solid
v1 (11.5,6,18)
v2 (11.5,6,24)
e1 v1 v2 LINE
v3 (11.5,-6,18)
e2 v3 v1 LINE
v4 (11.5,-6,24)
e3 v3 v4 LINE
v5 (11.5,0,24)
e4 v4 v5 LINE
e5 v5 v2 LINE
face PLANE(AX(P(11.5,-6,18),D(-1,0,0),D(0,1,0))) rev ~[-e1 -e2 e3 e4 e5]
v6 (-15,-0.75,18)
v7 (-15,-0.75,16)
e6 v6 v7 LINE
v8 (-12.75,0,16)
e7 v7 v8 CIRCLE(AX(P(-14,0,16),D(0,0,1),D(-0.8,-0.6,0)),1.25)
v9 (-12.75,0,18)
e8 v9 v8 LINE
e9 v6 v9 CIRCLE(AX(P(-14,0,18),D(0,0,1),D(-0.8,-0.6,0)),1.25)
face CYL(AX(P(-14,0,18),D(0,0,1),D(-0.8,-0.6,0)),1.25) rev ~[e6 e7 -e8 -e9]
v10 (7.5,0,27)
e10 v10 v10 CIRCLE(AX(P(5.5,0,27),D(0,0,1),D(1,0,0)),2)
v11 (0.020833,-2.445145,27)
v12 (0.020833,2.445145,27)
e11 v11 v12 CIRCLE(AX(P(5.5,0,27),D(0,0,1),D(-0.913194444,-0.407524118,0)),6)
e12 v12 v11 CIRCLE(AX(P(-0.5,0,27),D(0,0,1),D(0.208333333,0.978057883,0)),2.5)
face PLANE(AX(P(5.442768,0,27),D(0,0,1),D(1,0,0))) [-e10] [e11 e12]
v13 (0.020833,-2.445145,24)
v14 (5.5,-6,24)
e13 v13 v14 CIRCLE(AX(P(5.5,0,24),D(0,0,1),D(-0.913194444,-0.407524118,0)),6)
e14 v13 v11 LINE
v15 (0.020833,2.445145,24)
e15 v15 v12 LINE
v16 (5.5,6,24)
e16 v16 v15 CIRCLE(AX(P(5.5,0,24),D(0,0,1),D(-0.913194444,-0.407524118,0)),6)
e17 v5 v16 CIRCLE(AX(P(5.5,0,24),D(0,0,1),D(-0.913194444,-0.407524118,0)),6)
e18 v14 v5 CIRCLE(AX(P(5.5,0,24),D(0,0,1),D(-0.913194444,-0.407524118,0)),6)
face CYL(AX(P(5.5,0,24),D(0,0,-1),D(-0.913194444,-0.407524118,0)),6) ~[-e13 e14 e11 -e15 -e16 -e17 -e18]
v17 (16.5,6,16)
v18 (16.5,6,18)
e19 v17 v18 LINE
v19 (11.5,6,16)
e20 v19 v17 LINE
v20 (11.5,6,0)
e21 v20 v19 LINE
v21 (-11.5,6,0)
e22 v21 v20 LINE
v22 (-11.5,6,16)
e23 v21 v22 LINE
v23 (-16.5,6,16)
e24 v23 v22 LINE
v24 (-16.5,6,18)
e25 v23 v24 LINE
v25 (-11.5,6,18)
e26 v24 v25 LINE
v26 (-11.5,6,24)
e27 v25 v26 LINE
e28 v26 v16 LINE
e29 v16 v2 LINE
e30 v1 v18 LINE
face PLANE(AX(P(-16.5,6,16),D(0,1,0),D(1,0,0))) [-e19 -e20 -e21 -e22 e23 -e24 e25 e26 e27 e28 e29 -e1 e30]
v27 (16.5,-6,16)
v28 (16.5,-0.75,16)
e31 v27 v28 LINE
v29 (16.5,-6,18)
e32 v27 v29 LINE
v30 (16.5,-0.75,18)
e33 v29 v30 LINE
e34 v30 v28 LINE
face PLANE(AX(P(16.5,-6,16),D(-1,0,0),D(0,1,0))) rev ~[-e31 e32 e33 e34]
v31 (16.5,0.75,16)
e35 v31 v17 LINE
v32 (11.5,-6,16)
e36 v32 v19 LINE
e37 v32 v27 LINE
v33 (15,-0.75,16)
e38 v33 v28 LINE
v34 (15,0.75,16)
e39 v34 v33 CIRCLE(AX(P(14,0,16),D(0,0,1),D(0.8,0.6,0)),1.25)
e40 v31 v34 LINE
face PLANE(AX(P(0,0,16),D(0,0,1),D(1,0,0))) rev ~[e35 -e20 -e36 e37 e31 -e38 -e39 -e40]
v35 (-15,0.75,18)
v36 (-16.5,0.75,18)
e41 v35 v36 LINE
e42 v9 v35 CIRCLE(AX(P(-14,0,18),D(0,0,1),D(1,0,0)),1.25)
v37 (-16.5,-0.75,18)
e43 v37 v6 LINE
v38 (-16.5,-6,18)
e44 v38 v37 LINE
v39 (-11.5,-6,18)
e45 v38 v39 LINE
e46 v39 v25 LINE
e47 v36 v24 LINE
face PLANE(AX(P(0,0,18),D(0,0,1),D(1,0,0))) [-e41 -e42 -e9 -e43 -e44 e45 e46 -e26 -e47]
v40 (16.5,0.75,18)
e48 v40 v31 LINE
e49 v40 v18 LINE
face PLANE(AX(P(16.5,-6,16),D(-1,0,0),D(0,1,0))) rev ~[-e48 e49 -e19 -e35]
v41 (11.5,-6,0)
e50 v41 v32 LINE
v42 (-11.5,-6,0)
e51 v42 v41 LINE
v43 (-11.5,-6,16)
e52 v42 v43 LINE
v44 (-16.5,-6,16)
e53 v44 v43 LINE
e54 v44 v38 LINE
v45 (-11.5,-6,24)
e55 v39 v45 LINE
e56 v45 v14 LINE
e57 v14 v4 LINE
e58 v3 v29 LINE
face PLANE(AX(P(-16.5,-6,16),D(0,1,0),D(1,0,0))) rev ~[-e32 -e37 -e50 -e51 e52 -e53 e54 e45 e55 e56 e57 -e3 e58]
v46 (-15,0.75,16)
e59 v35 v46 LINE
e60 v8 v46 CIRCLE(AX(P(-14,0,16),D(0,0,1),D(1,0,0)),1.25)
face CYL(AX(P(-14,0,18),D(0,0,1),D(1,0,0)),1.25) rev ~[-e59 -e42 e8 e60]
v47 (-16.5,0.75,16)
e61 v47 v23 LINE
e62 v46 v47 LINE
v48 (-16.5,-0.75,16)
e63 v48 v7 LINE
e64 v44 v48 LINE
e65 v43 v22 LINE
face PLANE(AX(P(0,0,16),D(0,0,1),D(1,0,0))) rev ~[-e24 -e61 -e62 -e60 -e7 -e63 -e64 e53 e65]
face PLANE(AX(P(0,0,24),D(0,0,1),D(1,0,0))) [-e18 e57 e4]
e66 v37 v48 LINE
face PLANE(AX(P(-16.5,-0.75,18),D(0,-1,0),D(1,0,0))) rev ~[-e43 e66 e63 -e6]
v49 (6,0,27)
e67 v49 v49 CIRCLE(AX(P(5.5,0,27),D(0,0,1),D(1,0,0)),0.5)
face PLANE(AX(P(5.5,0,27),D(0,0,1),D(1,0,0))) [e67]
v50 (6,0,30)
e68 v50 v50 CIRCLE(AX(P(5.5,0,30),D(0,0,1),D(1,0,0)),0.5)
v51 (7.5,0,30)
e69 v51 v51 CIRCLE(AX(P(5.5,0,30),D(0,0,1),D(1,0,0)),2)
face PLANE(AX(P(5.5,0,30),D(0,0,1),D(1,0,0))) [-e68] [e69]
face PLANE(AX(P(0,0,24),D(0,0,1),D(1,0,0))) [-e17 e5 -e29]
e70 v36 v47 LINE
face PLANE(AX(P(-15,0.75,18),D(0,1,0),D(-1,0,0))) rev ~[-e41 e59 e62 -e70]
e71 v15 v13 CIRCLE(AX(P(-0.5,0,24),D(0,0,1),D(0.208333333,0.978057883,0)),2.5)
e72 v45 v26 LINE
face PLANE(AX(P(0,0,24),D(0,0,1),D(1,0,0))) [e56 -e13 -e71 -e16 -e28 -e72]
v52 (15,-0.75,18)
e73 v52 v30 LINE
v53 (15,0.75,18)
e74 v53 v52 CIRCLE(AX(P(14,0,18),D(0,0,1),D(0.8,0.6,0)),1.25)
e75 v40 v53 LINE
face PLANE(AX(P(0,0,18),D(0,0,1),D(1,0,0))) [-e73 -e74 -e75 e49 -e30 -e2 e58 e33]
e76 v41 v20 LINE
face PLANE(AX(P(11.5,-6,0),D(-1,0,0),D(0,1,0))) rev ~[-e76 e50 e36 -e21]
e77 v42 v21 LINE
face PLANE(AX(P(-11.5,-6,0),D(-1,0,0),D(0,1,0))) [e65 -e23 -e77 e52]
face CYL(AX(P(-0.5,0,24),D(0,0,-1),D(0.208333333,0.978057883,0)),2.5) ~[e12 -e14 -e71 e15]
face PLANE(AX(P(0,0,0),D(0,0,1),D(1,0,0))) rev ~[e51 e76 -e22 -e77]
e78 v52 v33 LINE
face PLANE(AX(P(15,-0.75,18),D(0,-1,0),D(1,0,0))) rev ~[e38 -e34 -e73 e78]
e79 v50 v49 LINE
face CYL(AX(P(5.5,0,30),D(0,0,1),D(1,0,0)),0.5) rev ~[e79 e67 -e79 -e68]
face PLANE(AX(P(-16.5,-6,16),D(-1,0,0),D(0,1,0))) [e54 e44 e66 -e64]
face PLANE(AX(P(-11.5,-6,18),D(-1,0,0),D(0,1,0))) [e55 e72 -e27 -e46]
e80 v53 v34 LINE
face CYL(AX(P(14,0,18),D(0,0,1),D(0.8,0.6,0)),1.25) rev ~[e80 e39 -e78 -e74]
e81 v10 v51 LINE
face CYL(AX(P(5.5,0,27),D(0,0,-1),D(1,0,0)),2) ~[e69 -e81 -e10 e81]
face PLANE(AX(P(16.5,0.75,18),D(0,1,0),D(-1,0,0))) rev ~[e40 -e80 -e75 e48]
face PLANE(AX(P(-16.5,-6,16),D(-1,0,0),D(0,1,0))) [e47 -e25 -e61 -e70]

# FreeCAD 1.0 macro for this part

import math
import FreeCAD as App
import Part
import Sketcher

doc = App.newDocument("Part")
body = doc.addObject("PartDesign::Body", "Body")

# Sketch on XY plane
sketch1 = doc.addObject("Sketcher::SketchObject", "Sketch")
body.addObject(sketch1)
sketch1.AttachmentSupport = (doc.XY_Plane, [""])
sketch1.MapMode = "FlatFace"
sketch1.addGeometry(Part.LineSegment(App.Vector(-12, 6, 0), App.Vector(-12, -6, 0)), False)
sketch1.addGeometry(Part.LineSegment(App.Vector(-12, -6, 0), App.Vector(12, -6, 0)), False)
sketch1.addGeometry(Part.LineSegment(App.Vector(12, -6, 0), App.Vector(12, 6, 0)), False)
sketch1.addGeometry(Part.LineSegment(App.Vector(12, 6, 0), App.Vector(-12, 6, 0)), False)
sketch1.addConstraint(Sketcher.Constraint("Coincident", 0, 2, 1, 1))
sketch1.addConstraint(Sketcher.Constraint("Coincident", 1, 2, 2, 1))
sketch1.addConstraint(Sketcher.Constraint("Coincident", 2, 2, 3, 1))
sketch1.addConstraint(Sketcher.Constraint("Coincident", 3, 2, 0, 1))
sketch1.addConstraint(Sketcher.Constraint("Vertical", 0))
sketch1.addConstraint(Sketcher.Constraint("Horizontal", 1))
sketch1.addConstraint(Sketcher.Constraint("Vertical", 2))
sketch1.addConstraint(Sketcher.Constraint("Horizontal", 3))
sketch1.addConstraint(Sketcher.Constraint("Symmetric", 0, 2, 2, 2, -1, 1))
sketch1.addConstraint(Sketcher.Constraint("DistanceX", 1, 1, 1, 2, 23.0))
sketch1.addConstraint(Sketcher.Constraint("DistanceY", 0, 2, 0, 1, 12.0))
pad1 = doc.addObject("PartDesign::Pad", "Pad")
body.addObject(pad1)
pad1.Profile = sketch1
pad1.Length = 16

# Sketch on XY plane
sketch2 = doc.addObject("Sketcher::SketchObject", "Sketch001")
body.addObject(sketch2)
sketch2.AttachmentSupport = (doc.XY_Plane, [""])
sketch2.MapMode = "FlatFace"
sketch2.AttachmentOffset = App.Placement(App.Vector(0, 0, 16), App.Rotation())
sketch2.addGeometry(Part.LineSegment(App.Vector(-16, 6, 0), App.Vector(-16, -6, 0)), False)
sketch2.addGeometry(Part.LineSegment(App.Vector(-16, -6, 0), App.Vector(16, -6, 0)), False)
sketch2.addGeometry(Part.LineSegment(App.Vector(16, -6, 0), App.Vector(16, 6, 0)), False)
sketch2.addGeometry(Part.LineSegment(App.Vector(16, 6, 0), App.Vector(-16, 6, 0)), False)
sketch2.addConstraint(Sketcher.Constraint("Coincident", 0, 2, 1, 1))
sketch2.addConstraint(Sketcher.Constraint("Coincident", 1, 2, 2, 1))
sketch2.addConstraint(Sketcher.Constraint("Coincident", 2, 2, 3, 1))
sketch2.addConstraint(Sketcher.Constraint("Coincident", 3, 2, 0, 1))
sketch2.addConstraint(Sketcher.Constraint("Vertical", 0))
sketch2.addConstraint(Sketcher.Constraint("Horizontal", 1))
sketch2.addConstraint(Sketcher.Constraint("Vertical", 2))
sketch2.addConstraint(Sketcher.Constraint("Horizontal", 3))
sketch2.addConstraint(Sketcher.Constraint("Symmetric", 0, 2, 2, 2, -1, 1))
sketch2.addConstraint(Sketcher.Constraint("DistanceX", 1, 1, 1, 2, 33.0))
sketch2.addConstraint(Sketcher.Constraint("DistanceY", 0, 2, 0, 1, 12.0))
pad2 = doc.addObject("PartDesign::Pad", "Pad001")
body.addObject(pad2)
pad2.Profile = sketch2
pad2.Length = 2

# Sketch on XY plane
sketch3 = doc.addObject("Sketcher::SketchObject", "Sketch002")
body.addObject(sketch3)
sketch3.AttachmentSupport = (doc.XY_Plane, [""])
sketch3.MapMode = "FlatFace"
sketch3.AttachmentOffset = App.Placement(App.Vector(0, 0, 18), App.Rotation())
sketch3.addGeometry(Part.LineSegment(App.Vector(-12, 6, 0), App.Vector(-12, -6, 0)), False)
sketch3.addGeometry(Part.LineSegment(App.Vector(-12, -6, 0), App.Vector(12, -6, 0)), False)
sketch3.addGeometry(Part.LineSegment(App.Vector(12, -6, 0), App.Vector(12, 6, 0)), False)
sketch3.addGeometry(Part.LineSegment(App.Vector(12, 6, 0), App.Vector(-12, 6, 0)), False)
sketch3.addConstraint(Sketcher.Constraint("Coincident", 0, 2, 1, 1))
sketch3.addConstraint(Sketcher.Constraint("Coincident", 1, 2, 2, 1))
sketch3.addConstraint(Sketcher.Constraint("Coincident", 2, 2, 3, 1))
sketch3.addConstraint(Sketcher.Constraint("Coincident", 3, 2, 0, 1))
sketch3.addConstraint(Sketcher.Constraint("Vertical", 0))
sketch3.addConstraint(Sketcher.Constraint("Horizontal", 1))
sketch3.addConstraint(Sketcher.Constraint("Vertical", 2))
sketch3.addConstraint(Sketcher.Constraint("Horizontal", 3))
sketch3.addConstraint(Sketcher.Constraint("Symmetric", 0, 2, 2, 2, -1, 1))
sketch3.addConstraint(Sketcher.Constraint("DistanceX", 1, 1, 1, 2, 23.0))
sketch3.addConstraint(Sketcher.Constraint("DistanceY", 0, 2, 0, 1, 12.0))
pad3 = doc.addObject("PartDesign::Pad", "Pad002")
body.addObject(pad3)
pad3.Profile = sketch3
pad3.Length = 6

# Sketch on XY plane
sketch4 = doc.addObject("Sketcher::SketchObject", "Sketch003")
body.addObject(sketch4)
sketch4.AttachmentSupport = (doc.XY_Plane, [""])
sketch4.MapMode = "FlatFace"
sketch4.AttachmentOffset = App.Placement(App.Vector(0, 0, 24), App.Rotation())
sketch4.addGeometry(Part.ArcOfCircle(Part.Circle(App.Vector(-0.5, 0, 0), App.Vector(0, 0, 1), 2.5), math.radians(78), math.radians(282)), False)
sketch4.addGeometry(Part.ArcOfCircle(Part.Circle(App.Vector(5.5, 0, 0), App.Vector(0, 0, 1), 6), math.radians(-156), math.radians(156)), False)
sketch4.addConstraint(Sketcher.Constraint("Coincident", 0, 1, 1, 2))
sketch4.addConstraint(Sketcher.Constraint("Coincident", 1, 1, 0, 2))
sketch4.addConstraint(Sketcher.Constraint("Symmetric", 0, 1, 1, 1, -1))
sketch4.addConstraint(Sketcher.Constraint("Radius", 1, 6.0))
sketch4.addConstraint(Sketcher.Constraint("Radius", 0, 2.5))
sketch4.addConstraint(Sketcher.Constraint("DistanceX", 0, 3, 1, 3, 6.0))
sketch4.addConstraint(Sketcher.Constraint("DistanceX", 0, 3, -1, 1, 0.5))
pad4 = doc.addObject("PartDesign::Pad", "Pad003")
body.addObject(pad4)
pad4.Profile = sketch4
pad4.Length = 3

# Sketch on XY plane
sketch5 = doc.addObject("Sketcher::SketchObject", "Sketch004")
body.addObject(sketch5)
sketch5.AttachmentSupport = (doc.XY_Plane, [""])
sketch5.MapMode = "FlatFace"
sketch5.AttachmentOffset = App.Placement(App.Vector(0, 0, 27), App.Rotation())
sketch5.addGeometry(Part.Circle(App.Vector(5.5, 0, 0), App.Vector(0, 0, 1), 2), False)
sketch5.addConstraint(Sketcher.Constraint("PointOnObject", 0, 3, -1))
sketch5.addConstraint(Sketcher.Constraint("Diameter", 0, 4.0))
sketch5.addConstraint(Sketcher.Constraint("DistanceX", -1, 1, 0, 3, 5.5))
pad5 = doc.addObject("PartDesign::Pad", "Pad004")
body.addObject(pad5)
pad5.Profile = sketch5
pad5.Length = 3

# Sketch on XY plane
sketch6 = doc.addObject("Sketcher::SketchObject", "Sketch005")
body.addObject(sketch6)
sketch6.AttachmentSupport = (doc.XY_Plane, [""])
sketch6.MapMode = "FlatFace"
sketch6.AttachmentOffset = App.Placement(App.Vector(0, 0, 18), App.Rotation())
sketch6.addGeometry(Part.ArcOfCircle(Part.Circle(App.Vector(-14, 0, 0), App.Vector(0, 0, 1), 1.2), math.radians(-143), math.radians(0)), False)
sketch6.addGeometry(Part.ArcOfCircle(Part.Circle(App.Vector(-14, 0, 0), App.Vector(0, 0, 1), 1.2), math.radians(0), math.radians(143)), False)
sketch6.addGeometry(Part.LineSegment(App.Vector(-15, 0.8, 0), App.Vector(-16.5, 0.8, 0)), False)
sketch6.addGeometry(Part.LineSegment(App.Vector(-16.5, 0.8, 0), App.Vector(-16.5, -0.8, 0)), False)
sketch6.addGeometry(Part.LineSegment(App.Vector(-16.5, -0.8, 0), App.Vector(-15, -0.8, 0)), False)
sketch6.addGeometry(Part.LineSegment(App.Vector(15, -0.8, 0), App.Vector(16.5, -0.8, 0)), False)
sketch6.addGeometry(Part.LineSegment(App.Vector(16.5, -0.8, 0), App.Vector(16.5, 0.8, 0)), False)
sketch6.addGeometry(Part.LineSegment(App.Vector(16.5, 0.8, 0), App.Vector(15, 0.8, 0)), False)
sketch6.addGeometry(Part.ArcOfCircle(Part.Circle(App.Vector(14, 0, 0), App.Vector(0, 0, 1), 1.2), math.radians(37), math.radians(323)), False)
sketch6.addConstraint(Sketcher.Constraint("Tangent", 0, 2, 1, 1))
sketch6.addConstraint(Sketcher.Constraint("Coincident", 1, 2, 2, 1))
sketch6.addConstraint(Sketcher.Constraint("Coincident", 2, 2, 3, 1))
sketch6.addConstraint(Sketcher.Constraint("Coincident", 3, 2, 4, 1))
sketch6.addConstraint(Sketcher.Constraint("Coincident", 4, 2, 0, 1))
sketch6.addConstraint(Sketcher.Constraint("Coincident", 5, 2, 6, 1))
sketch6.addConstraint(Sketcher.Constraint("Coincident", 6, 2, 7, 1))
sketch6.addConstraint(Sketcher.Constraint("Coincident", 7, 2, 8, 1))
sketch6.addConstraint(Sketcher.Constraint("Coincident", 8, 2, 5, 1))
sketch6.addConstraint(Sketcher.Constraint("Horizontal", 2))
sketch6.addConstraint(Sketcher.Constraint("Vertical", 3))
sketch6.addConstraint(Sketcher.Constraint("Horizontal", 4))
sketch6.addConstraint(Sketcher.Constraint("Horizontal", 5))
sketch6.addConstraint(Sketcher.Constraint("Vertical", 6))
sketch6.addConstraint(Sketcher.Constraint("Horizontal", 7))
sketch6.addConstraint(Sketcher.Constraint("Equal", 0, 1))
sketch6.addConstraint(Sketcher.Constraint("Equal", 1, 8))
sketch6.addConstraint(Sketcher.Constraint("Symmetric", 0, 3, 8, 3, -1, 1))
sketch6.addConstraint(Sketcher.Constraint("Symmetric", 2, 2, 5, 2, -1, 1))
sketch6.addConstraint(Sketcher.Constraint("Symmetric", 1, 2, 7, 2, -2))
sketch6.addConstraint(Sketcher.Constraint("PointOnObject", 0, 2, -1))
sketch6.addConstraint(Sketcher.Constraint("Horizontal", 4, 2, 5, 2))
sketch6.addConstraint(Sketcher.Constraint("Equal", 7, 3))
sketch6.addConstraint(Sketcher.Constraint("Radius", 0, 1.25))
sketch6.addConstraint(Sketcher.Constraint("DistanceX", 2, 2, 2, 1, 1.5))
sketch6.addConstraint(Sketcher.Constraint("DistanceX", 0, 3, -1, 1, 14.0))
pocket1 = doc.addObject("PartDesign::Pocket", "Pocket")
body.addObject(pocket1)
pocket1.Profile = sketch6
pocket1.Type = "ThroughAll"

# Sketch on XY plane
sketch7 = doc.addObject("Sketcher::SketchObject", "Sketch006")
body.addObject(sketch7)
sketch7.AttachmentSupport = (doc.XY_Plane, [""])
sketch7.MapMode = "FlatFace"
sketch7.AttachmentOffset = App.Placement(App.Vector(0, 0, 30), App.Rotation())
sketch7.addGeometry(Part.Circle(App.Vector(5.5, 0, 0), App.Vector(0, 0, 1), 0.5), False)
sketch7.addConstraint(Sketcher.Constraint("PointOnObject", 0, 3, -1))
sketch7.addConstraint(Sketcher.Constraint("Diameter", 0, 1.0))
sketch7.addConstraint(Sketcher.Constraint("DistanceX", -1, 1, 0, 3, 5.5))
pocket2 = doc.addObject("PartDesign::Pocket", "Pocket001")
body.addObject(pocket2)
pocket2.Profile = sketch7
pocket2.Length = 3

doc.recompute()
